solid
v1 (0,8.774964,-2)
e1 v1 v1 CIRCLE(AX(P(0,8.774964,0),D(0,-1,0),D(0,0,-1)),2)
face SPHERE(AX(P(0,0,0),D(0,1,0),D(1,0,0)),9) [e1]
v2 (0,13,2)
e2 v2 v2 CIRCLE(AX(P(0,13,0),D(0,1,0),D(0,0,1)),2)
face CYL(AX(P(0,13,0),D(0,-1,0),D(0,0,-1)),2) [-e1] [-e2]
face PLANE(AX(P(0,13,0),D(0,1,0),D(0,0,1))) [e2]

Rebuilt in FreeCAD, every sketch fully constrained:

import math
import FreeCAD as App
import Part
import Sketcher

doc = App.newDocument("Part")
params = doc.addObject("Spreadsheet::Sheet", "Params")
for row, (alias, value) in enumerate([
    ("sketch1_radius", "9 mm"),
    ("revolution_angle", "360 deg"),
    ("sketch2_diameter", "4 mm"),
    ("pad1_length", "13 mm"),
], start=1):
    params.set(f"A{row}", alias)
    params.set(f"B{row}", "=" + value)
    params.setAlias(f"B{row}", alias)

body = doc.addObject("PartDesign::Body", "Body")

sketch1 = doc.addObject("Sketcher::SketchObject", "Sketch")
body.addObject(sketch1)
sketch1.AttachmentSupport = (doc.XY_Plane, [""])
sketch1.MapMode = "FlatFace"
sketch1.addGeometry(Part.LineSegment(App.Vector(0, -9, 0), App.Vector(0, 9, 0)), False)
sketch1.addGeometry(Part.ArcOfCircle(Part.Circle(App.Vector(0, 0, 0), App.Vector(0, 0, 1), 9), math.radians(90), math.radians(270)), False)
sketch1.addConstraint(Sketcher.Constraint("Coincident", 0, 1, 1, 2))
sketch1.addConstraint(Sketcher.Constraint("Coincident", 1, 1, 0, 2))
sketch1.addConstraint(Sketcher.Constraint("Vertical", 0))
sketch1.addConstraint(Sketcher.Constraint("Coincident", 1, 3, -1, 1))
sketch1.addConstraint(Sketcher.Constraint("PointOnObject", 0, 1, -2))
sketch1.addConstraint(Sketcher.Constraint("Radius", 1, 9.0))
sketch1.setExpression("Constraints[5]", "Params.sketch1_radius")
revolution = doc.addObject("PartDesign::Revolution", "Revolution")
body.addObject(revolution)
revolution.Profile = sketch1
revolution.ReferenceAxis = (sketch1, ["V_Axis"])
revolution.setExpression("Angle", "Params.revolution_angle")

sketch2 = doc.addObject("Sketcher::SketchObject", "Sketch001")
body.addObject(sketch2)
sketch2.AttachmentSupport = (doc.XZ_Plane, [""])
sketch2.MapMode = "FlatFace"
sketch2.addGeometry(Part.Circle(App.Vector(0, 0, 0), App.Vector(0, 0, 1), 2), False)
sketch2.addConstraint(Sketcher.Constraint("Coincident", 0, 3, -1, 1))
sketch2.addConstraint(Sketcher.Constraint("Diameter", 0, 4.0))
sketch2.setExpression("Constraints[1]", "Params.sketch2_diameter")
pad1 = doc.addObject("PartDesign::Pad", "Pad")
body.addObject(pad1)
pad1.Profile = sketch2
pad1.setExpression("Length", "Params.pad1_length")
pad1.Reversed = True

doc.recompute()
